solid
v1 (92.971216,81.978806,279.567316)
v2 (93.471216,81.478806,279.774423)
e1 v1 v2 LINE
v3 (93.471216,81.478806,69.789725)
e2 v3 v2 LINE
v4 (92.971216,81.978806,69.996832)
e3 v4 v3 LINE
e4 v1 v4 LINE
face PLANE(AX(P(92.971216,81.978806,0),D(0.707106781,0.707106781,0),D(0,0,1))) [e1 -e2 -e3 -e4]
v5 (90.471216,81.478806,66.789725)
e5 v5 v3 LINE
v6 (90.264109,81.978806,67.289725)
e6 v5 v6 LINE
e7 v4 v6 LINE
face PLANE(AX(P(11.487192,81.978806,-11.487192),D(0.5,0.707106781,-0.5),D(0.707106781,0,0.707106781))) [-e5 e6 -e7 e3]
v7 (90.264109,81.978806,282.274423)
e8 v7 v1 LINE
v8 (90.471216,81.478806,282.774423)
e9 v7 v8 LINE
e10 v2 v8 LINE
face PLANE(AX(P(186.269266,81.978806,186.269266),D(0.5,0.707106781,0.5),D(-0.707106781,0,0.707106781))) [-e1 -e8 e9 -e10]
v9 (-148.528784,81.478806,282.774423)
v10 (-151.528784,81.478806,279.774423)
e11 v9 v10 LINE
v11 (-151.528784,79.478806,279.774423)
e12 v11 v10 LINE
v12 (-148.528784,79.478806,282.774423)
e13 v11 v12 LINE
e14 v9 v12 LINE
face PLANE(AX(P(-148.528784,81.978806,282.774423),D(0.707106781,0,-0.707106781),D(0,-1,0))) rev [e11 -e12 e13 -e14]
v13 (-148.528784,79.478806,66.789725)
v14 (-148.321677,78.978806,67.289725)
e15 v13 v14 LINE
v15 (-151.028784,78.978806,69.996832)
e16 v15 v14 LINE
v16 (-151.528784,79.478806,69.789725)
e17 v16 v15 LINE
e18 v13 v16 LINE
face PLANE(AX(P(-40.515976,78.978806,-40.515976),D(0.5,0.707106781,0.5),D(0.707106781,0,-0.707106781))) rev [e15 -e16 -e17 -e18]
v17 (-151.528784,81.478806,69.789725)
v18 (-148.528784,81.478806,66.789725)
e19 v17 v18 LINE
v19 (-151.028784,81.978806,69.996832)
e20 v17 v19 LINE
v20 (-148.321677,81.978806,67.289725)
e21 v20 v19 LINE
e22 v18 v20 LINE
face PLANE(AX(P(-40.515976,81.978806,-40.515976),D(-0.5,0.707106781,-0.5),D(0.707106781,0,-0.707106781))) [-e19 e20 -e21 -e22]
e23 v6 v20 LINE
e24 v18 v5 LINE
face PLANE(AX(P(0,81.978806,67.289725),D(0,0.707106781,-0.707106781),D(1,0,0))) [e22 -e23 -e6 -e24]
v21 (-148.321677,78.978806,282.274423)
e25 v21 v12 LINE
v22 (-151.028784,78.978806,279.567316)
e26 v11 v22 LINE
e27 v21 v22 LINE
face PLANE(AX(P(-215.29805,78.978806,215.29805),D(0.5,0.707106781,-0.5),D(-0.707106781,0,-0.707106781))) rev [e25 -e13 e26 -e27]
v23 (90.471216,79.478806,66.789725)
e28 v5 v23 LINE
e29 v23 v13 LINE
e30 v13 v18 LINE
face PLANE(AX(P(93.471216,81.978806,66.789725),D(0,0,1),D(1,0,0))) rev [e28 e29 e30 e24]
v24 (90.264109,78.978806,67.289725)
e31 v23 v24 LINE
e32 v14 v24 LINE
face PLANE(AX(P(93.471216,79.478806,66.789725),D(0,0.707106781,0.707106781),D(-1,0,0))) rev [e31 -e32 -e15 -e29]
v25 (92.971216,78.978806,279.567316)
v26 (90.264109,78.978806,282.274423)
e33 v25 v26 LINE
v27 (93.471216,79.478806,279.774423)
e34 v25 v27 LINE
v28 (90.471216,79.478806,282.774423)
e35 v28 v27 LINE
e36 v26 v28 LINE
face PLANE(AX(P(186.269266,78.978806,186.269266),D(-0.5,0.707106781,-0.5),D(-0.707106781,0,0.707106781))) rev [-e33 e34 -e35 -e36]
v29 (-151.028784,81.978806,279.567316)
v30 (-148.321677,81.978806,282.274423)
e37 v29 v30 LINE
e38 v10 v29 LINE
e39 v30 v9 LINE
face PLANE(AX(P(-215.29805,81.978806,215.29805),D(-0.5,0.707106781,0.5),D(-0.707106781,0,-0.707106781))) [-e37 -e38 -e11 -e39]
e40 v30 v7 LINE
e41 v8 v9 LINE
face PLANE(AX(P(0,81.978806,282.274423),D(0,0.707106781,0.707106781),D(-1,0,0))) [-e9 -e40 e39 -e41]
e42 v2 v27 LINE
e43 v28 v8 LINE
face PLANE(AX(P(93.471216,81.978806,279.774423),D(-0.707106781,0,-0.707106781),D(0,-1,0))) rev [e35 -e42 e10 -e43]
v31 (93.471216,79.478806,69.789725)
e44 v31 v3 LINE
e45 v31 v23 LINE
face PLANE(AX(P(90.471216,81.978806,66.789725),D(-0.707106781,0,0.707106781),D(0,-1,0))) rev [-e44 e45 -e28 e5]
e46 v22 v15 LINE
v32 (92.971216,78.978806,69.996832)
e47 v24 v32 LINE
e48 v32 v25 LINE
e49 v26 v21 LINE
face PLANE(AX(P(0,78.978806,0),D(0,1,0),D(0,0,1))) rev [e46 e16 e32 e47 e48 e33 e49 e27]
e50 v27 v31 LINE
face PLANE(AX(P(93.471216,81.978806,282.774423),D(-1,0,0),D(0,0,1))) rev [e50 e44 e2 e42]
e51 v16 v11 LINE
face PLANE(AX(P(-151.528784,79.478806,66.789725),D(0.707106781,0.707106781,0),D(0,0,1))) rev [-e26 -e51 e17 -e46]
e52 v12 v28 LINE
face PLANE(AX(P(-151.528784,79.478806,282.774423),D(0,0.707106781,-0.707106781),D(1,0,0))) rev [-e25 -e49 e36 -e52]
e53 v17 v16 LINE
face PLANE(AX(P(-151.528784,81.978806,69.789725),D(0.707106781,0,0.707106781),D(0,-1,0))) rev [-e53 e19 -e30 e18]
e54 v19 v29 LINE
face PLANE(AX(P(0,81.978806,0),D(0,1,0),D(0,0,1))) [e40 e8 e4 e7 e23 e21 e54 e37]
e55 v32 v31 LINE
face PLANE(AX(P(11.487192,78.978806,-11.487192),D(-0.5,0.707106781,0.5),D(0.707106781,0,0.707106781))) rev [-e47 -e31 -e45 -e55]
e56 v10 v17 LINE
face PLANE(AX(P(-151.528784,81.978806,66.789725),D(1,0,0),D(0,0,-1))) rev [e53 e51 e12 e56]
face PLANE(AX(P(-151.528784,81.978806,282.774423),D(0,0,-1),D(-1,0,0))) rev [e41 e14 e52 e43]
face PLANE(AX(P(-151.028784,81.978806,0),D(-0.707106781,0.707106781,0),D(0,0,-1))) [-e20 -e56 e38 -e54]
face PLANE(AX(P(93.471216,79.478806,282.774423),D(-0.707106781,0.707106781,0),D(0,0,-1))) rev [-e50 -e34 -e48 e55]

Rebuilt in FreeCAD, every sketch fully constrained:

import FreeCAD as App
import Part
import Sketcher

V = App.Vector
Q = App.Units.Quantity


def edges_at(feature, points):
    """Names of the edges that pass closest to the given points."""
    edges = feature.Shape.Edges
    near = lambda p: min(range(len(edges)), key=lambda i: edges[i].distToShape(Part.Vertex(*p))[0])
    return sorted({f"Edge{near(p) + 1}" for p in points})


def add_polygon(sketch, points):
    """Adds a closed chain of lines whose ends are joined by coincident constraints."""
    first, n = sketch.GeometryCount, len(points)
    for a, b in zip(points, points[1:] + points[:1]):
        sketch.addGeometry(Part.LineSegment(App.Vector(*a, 0), App.Vector(*b, 0)), False)
    for i in range(n):
        sketch.addConstraint(Sketcher.Constraint("Coincident", first + i, 2, first + (i + 1) % n, 1))

doc = App.newDocument("Part")
body = doc.addObject("PartDesign::Body", "Body")

# Sketch on XZ plane
sketch1 = body.newObject("Sketcher::SketchObject", "Sketch")
sketch1.AttachmentSupport = (doc.getObject("XZ_Plane"), [""])
sketch1.MapMode = "FlatFace"
sketch1.AttachmentOffset = App.Placement(V(0, 0, -78.978806), App.Rotation())
add_polygon(sketch1, [(-152, 67), (-152, 283), (93, 283), (93, 67)])  # lines 0-3
sketch1.addConstraint([
    Sketcher.Constraint("Vertical", 0),
    Sketcher.Constraint("Horizontal", 1),
    Sketcher.Constraint("Vertical", 2),
    Sketcher.Constraint("Horizontal", 3),
    Sketcher.Constraint("DistanceX", 1, 1, 1, 2, Q("245 mm")),
    Sketcher.Constraint("DistanceY", 0, 1, 0, 2, Q("215.984698 mm")),
    Sketcher.Constraint("DistanceX", 0, 2, -1, 1, Q("151.528784 mm")),
    Sketcher.Constraint("DistanceY", -1, 1, 0, 2, Q("282.774423 mm")),
])
pad1 = body.newObject("PartDesign::Pad", "Pad")
pad1.Profile = sketch1
pad1.Length = 3
pad1.Reversed = True
doc.recompute()

chamfer = body.newObject("PartDesign::Chamfer", "Chamfer")
chamfer.Base = (pad1, edges_at(pad1, [
    (93.471, 80.479, 66.79),
    (93.471, 80.479, 282.774),
    (-151.529, 80.479, 282.774),
    (-151.529, 80.479, 66.79),
]))
chamfer.Size = 3
doc.recompute()

chamfer2 = body.newObject("PartDesign::Chamfer", "Chamfer001")
chamfer2.Base = (chamfer, edges_at(chamfer, [
    (-151.529, 81.979, 174.782),
    (-29.029, 81.979, 66.79),
    (-29.029, 81.979, 282.774),
    (93.471, 81.979, 174.782),
    (91.971, 81.979, 281.274),
    (91.971, 81.979, 68.29),
    (-150.029, 81.979, 281.274),
    (-150.029, 81.979, 68.29),
]))
chamfer2.Size = 0.5
doc.recompute()

chamfer3 = body.newObject("PartDesign::Chamfer", "Chamfer002")
chamfer3.Base = (chamfer2, edges_at(chamfer2, [
    (-151.529, 78.979, 174.782),
    (-29.029, 78.979, 66.79),
    (93.471, 78.979, 174.782),
    (-29.029, 78.979, 282.774),
    (91.971, 78.979, 281.274),
    (91.971, 78.979, 68.29),
    (-150.029, 78.979, 281.274),
    (-150.029, 78.979, 68.29),
]))
chamfer3.Size = 0.5

doc.recompute()
